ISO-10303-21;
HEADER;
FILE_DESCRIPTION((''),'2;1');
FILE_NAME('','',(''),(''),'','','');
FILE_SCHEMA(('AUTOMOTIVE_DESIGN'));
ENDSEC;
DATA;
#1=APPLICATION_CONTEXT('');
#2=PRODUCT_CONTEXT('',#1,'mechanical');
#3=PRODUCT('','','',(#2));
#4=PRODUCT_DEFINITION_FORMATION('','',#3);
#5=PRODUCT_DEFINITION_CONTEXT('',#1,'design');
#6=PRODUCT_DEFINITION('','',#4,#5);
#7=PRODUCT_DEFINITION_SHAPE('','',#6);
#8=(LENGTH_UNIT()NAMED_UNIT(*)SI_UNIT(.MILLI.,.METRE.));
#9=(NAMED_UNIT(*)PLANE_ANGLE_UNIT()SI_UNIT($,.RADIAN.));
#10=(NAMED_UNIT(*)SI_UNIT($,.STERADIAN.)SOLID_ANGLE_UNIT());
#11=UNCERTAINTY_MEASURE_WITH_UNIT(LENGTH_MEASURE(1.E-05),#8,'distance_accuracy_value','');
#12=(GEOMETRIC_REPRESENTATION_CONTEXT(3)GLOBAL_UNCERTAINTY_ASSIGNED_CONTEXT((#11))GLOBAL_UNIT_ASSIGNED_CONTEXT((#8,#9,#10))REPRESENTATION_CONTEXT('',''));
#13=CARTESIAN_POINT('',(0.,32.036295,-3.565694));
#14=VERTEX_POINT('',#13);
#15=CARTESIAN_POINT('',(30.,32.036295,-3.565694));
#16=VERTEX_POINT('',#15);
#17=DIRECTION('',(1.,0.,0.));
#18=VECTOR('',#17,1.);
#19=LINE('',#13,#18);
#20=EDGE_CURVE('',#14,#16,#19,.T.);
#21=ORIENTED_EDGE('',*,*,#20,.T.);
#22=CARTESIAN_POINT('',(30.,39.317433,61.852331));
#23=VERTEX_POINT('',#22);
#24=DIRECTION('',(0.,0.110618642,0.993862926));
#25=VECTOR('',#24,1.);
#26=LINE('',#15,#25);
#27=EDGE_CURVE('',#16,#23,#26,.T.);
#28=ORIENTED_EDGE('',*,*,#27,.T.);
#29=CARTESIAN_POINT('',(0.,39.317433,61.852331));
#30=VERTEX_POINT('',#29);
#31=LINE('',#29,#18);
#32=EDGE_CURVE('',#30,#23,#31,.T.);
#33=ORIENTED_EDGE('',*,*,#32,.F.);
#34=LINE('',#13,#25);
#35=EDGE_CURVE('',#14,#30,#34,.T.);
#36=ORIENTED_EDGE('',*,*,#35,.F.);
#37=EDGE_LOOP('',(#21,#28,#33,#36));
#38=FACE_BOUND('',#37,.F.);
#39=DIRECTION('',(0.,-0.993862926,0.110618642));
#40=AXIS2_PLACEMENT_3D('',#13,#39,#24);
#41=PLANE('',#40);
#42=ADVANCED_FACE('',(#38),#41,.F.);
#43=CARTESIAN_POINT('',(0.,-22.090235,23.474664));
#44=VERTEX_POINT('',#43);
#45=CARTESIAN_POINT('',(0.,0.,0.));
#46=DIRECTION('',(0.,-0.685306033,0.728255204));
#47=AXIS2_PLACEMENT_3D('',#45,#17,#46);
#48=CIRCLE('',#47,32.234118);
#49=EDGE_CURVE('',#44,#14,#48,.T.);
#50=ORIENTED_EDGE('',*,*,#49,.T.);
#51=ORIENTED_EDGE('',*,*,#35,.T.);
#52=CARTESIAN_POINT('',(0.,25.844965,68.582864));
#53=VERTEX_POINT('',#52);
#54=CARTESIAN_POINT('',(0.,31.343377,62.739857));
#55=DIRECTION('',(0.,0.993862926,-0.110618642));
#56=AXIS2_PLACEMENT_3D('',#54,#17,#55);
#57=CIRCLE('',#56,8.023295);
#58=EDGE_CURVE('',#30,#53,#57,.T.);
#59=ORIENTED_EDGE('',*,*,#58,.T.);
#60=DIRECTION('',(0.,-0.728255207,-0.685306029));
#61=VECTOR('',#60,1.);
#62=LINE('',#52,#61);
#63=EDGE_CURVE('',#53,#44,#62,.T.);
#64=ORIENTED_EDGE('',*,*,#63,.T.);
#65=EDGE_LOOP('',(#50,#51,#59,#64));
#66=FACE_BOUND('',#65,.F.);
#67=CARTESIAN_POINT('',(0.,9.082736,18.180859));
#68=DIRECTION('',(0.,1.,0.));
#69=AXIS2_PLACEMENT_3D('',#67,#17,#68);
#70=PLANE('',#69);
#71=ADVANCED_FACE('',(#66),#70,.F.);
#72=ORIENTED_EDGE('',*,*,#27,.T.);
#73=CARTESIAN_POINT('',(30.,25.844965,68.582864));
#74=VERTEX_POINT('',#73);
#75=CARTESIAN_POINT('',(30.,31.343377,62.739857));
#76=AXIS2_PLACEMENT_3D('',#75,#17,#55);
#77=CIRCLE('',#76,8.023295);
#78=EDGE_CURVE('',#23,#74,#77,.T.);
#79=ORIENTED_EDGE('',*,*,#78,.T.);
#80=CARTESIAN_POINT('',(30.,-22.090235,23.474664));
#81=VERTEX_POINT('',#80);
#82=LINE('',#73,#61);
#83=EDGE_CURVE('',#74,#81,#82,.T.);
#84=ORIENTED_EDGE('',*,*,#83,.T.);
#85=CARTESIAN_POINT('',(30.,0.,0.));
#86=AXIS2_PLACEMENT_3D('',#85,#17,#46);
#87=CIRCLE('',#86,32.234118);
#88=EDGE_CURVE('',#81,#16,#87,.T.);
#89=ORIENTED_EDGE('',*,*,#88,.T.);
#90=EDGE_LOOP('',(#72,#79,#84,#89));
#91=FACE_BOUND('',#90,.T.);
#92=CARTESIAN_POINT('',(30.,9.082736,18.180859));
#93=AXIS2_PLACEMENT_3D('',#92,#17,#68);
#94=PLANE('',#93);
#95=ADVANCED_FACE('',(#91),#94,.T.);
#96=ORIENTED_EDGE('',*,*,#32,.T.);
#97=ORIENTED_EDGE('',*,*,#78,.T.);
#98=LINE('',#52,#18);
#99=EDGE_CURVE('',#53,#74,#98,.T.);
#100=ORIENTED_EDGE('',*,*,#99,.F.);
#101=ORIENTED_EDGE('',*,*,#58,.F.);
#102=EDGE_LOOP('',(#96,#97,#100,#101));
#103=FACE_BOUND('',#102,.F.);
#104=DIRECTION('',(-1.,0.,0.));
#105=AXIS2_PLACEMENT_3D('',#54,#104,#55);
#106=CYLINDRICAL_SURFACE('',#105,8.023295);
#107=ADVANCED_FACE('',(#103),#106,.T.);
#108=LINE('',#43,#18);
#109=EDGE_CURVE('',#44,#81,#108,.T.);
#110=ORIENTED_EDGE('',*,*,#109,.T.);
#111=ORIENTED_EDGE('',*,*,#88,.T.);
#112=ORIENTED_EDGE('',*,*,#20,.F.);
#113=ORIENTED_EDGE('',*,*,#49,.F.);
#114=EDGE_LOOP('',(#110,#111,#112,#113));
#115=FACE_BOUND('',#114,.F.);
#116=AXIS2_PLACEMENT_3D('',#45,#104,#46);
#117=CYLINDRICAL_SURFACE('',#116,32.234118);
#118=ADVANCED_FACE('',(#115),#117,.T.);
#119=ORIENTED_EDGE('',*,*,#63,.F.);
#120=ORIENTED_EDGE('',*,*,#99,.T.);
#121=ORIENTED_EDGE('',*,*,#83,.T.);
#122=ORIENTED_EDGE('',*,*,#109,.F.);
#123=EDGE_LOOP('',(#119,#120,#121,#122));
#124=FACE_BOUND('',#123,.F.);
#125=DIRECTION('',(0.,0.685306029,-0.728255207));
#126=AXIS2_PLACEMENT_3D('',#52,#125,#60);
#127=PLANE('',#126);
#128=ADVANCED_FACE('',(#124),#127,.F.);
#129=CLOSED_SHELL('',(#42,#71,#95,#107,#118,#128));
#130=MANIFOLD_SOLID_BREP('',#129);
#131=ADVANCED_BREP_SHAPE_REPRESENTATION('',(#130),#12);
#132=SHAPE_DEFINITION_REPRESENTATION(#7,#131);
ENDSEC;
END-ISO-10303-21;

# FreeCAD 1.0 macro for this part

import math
import FreeCAD as App
import Part
import Sketcher

doc = App.newDocument("Part")
body = doc.addObject("PartDesign::Body", "Body")

# Sketch on YZ plane
sketch1 = body.newObject("Sketcher::SketchObject", "Sketch")
sketch1.AttachmentSupport = (doc.getObject("YZ_Plane"), [""])
sketch1.MapMode = "FlatFace"
sketch1.addGeometry(Part.LineSegment(App.Vector(25.844965, 68.582864, 0), App.Vector(-22.090235, 23.474664, 0)), False)
sketch1.addGeometry(Part.ArcOfCircle(Part.Circle(App.Vector(0, 0, 0), App.Vector(0, 0, 1), 32.234118), math.radians(133.25968), math.radians(353.649022)), False)
sketch1.addGeometry(Part.LineSegment(App.Vector(32.036295, -3.565694, 0), App.Vector(39.317433, 61.852331, 0)), False)
sketch1.addGeometry(Part.ArcOfCircle(Part.Circle(App.Vector(31.343377, 62.739857, 0), App.Vector(0, 0, 1), 8.023295), math.radians(-6.350979), math.radians(133.259675)), False)
sketch1.addConstraint(Sketcher.Constraint("Tangent", 0, 2, 1, 1))
sketch1.addConstraint(Sketcher.Constraint("Tangent", 1, 2, 2, 1))
sketch1.addConstraint(Sketcher.Constraint("Tangent", 2, 2, 3, 1))
sketch1.addConstraint(Sketcher.Constraint("Tangent", 3, 2, 0, 1))
sketch1.addConstraint(Sketcher.Constraint("Coincident", 1, 3, -1, 1))
sketch1.addConstraint(Sketcher.Constraint("Radius", 1, 32.234118))
sketch1.addConstraint(Sketcher.Constraint("Radius", 3, 8.023295))
sketch1.addConstraint(Sketcher.Constraint("DistanceX", 0, 2, 3, 2, 47.9352))
sketch1.addConstraint(Sketcher.Constraint("DistanceY", 0, 2, 3, 2, 45.1082))
pad1 = body.newObject("PartDesign::Pad", "Pad")
pad1.Profile = sketch1
pad1.Length = 30

doc.recompute()
